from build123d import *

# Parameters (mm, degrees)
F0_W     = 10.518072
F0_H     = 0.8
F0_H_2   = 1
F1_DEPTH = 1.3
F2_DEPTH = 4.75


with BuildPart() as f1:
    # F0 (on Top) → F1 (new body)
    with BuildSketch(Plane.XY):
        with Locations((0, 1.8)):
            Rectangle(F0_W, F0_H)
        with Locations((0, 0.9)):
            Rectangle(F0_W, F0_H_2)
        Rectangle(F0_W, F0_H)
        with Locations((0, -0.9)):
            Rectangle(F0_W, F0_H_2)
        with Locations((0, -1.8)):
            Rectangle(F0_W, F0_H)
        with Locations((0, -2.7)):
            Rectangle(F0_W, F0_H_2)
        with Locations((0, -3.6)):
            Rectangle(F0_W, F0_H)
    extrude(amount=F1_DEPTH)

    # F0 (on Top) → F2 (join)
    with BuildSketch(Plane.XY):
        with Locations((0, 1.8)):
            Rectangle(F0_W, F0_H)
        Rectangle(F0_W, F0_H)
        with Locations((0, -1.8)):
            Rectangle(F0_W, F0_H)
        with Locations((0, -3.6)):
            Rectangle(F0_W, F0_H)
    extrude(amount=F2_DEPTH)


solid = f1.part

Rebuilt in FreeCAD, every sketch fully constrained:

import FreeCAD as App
import Part
import Sketcher
Q = App.Units.Quantity

doc = App.newDocument("Part")
body = doc.addObject("PartDesign::Body", "Body")

# Sketch on XY plane
sketch1 = body.newObject("Sketcher::SketchObject", "Sketch")
sketch1.AttachmentSupport = (doc.getObject("XY_Plane"), [""])
sketch1.MapMode = "FlatFace"
sketch1.addGeometry([
    Part.LineSegment(App.Vector(-5, 2, 0), App.Vector(-5, -4, 0)),
    Part.LineSegment(App.Vector(-5, -4, 0), App.Vector(5, -4, 0)),
    Part.LineSegment(App.Vector(5, -4, 0), App.Vector(5, 2, 0)),
    Part.LineSegment(App.Vector(5, 2, 0), App.Vector(-5, 2, 0)),
], False)
sketch1.addConstraint([
    Sketcher.Constraint("Coincident", 0, 2, 1, 1),
    Sketcher.Constraint("Coincident", 1, 2, 2, 1),
    Sketcher.Constraint("Coincident", 2, 2, 3, 1),
    Sketcher.Constraint("Coincident", 3, 2, 0, 1),
    Sketcher.Constraint("Vertical", 0),
    Sketcher.Constraint("Horizontal", 1),
    Sketcher.Constraint("Vertical", 2),
    Sketcher.Constraint("Horizontal", 3),
    Sketcher.Constraint("DistanceY", 0, 2, 0, 1, Q("6.2 mm")),
    Sketcher.Constraint("DistanceY", 0, 2, -1, 1, Q("4 mm")),
    Sketcher.Constraint("DistanceX", 1, 1, 1, 2, Q("10.518072 mm")),
    Sketcher.Constraint("DistanceX", 0, 2, -1, 1, Q("5.259036 mm")),
])
pad1 = body.newObject("PartDesign::Pad", "Pad")
pad1.Profile = sketch1
pad1.Length = 1.3

# Sketch on XY plane
sketch2 = body.newObject("Sketcher::SketchObject", "Sketch001")
sketch2.AttachmentSupport = (doc.getObject("XY_Plane"), [""])
sketch2.MapMode = "FlatFace"
sketch2.addGeometry([
    Part.LineSegment(App.Vector(-5.3, 2.2, 0), App.Vector(-5.3, 1.4, 0)),  # 0
    Part.LineSegment(App.Vector(-5.3, 1.4, 0), App.Vector(5.3, 1.4, 0)),  # 1
    Part.LineSegment(App.Vector(5.3, 1.4, 0), App.Vector(5.3, 2.2, 0)),  # 2
    Part.LineSegment(App.Vector(5.3, 2.2, 0), App.Vector(-5.3, 2.2, 0)),  # 3
    Part.LineSegment(App.Vector(-5.3, 0.4, 0), App.Vector(-5.3, -0.4, 0)),  # 4
    Part.LineSegment(App.Vector(-5.3, -0.4, 0), App.Vector(5.3, -0.4, 0)),  # 5
    Part.LineSegment(App.Vector(5.3, -0.4, 0), App.Vector(5.3, 0.4, 0)),  # 6
    Part.LineSegment(App.Vector(5.3, 0.4, 0), App.Vector(-5.3, 0.4, 0)),  # 7
    Part.LineSegment(App.Vector(-5.3, -1.4, 0), App.Vector(-5.3, -2.2, 0)),  # 8
    Part.LineSegment(App.Vector(-5.3, -2.2, 0), App.Vector(5.3, -2.2, 0)),  # 9
    Part.LineSegment(App.Vector(5.3, -2.2, 0), App.Vector(5.3, -1.4, 0)),  # 10
    Part.LineSegment(App.Vector(5.3, -1.4, 0), App.Vector(-5.3, -1.4, 0)),  # 11
    Part.LineSegment(App.Vector(-5.3, -3.2, 0), App.Vector(-5.3, -4, 0)),  # 12
    Part.LineSegment(App.Vector(-5.3, -4, 0), App.Vector(5.3, -4, 0)),  # 13
    Part.LineSegment(App.Vector(5.3, -4, 0), App.Vector(5.3, -3.2, 0)),  # 14
    Part.LineSegment(App.Vector(5.3, -3.2, 0), App.Vector(-5.3, -3.2, 0)),  # 15
], False)
sketch2.addConstraint([
    Sketcher.Constraint("Coincident", 0, 2, 1, 1),
    Sketcher.Constraint("Coincident", 1, 2, 2, 1),
    Sketcher.Constraint("Coincident", 2, 2, 3, 1),
    Sketcher.Constraint("Coincident", 3, 2, 0, 1),
    Sketcher.Constraint("Coincident", 4, 2, 5, 1),
    Sketcher.Constraint("Coincident", 5, 2, 6, 1),
    Sketcher.Constraint("Coincident", 6, 2, 7, 1),
    Sketcher.Constraint("Coincident", 7, 2, 4, 1),
    Sketcher.Constraint("Coincident", 8, 2, 9, 1),
    Sketcher.Constraint("Coincident", 9, 2, 10, 1),
    Sketcher.Constraint("Coincident", 10, 2, 11, 1),
    Sketcher.Constraint("Coincident", 11, 2, 8, 1),
    Sketcher.Constraint("Coincident", 12, 2, 13, 1),
    Sketcher.Constraint("Coincident", 13, 2, 14, 1),
    Sketcher.Constraint("Coincident", 14, 2, 15, 1),
    Sketcher.Constraint("Coincident", 15, 2, 12, 1),
    Sketcher.Constraint("Vertical", 0),
    Sketcher.Constraint("Horizontal", 1),
    Sketcher.Constraint("Vertical", 2),
    Sketcher.Constraint("Horizontal", 3),
    Sketcher.Constraint("Vertical", 4),
    Sketcher.Constraint("Horizontal", 5),
    Sketcher.Constraint("Vertical", 6),
    Sketcher.Constraint("Horizontal", 7),
    Sketcher.Constraint("Vertical", 8),
    Sketcher.Constraint("Horizontal", 9),
    Sketcher.Constraint("Vertical", 10),
    Sketcher.Constraint("Horizontal", 11),
    Sketcher.Constraint("Vertical", 12),
    Sketcher.Constraint("Horizontal", 13),
    Sketcher.Constraint("Vertical", 14),
    Sketcher.Constraint("Horizontal", 15),
    Sketcher.Constraint("Symmetric", 4, 2, 6, 2, -1, 1),
    Sketcher.Constraint("Symmetric", 2, 2, 8, 2, -1, 1),
    Sketcher.Constraint("Symmetric", 0, 2, 10, 2, -1, 1),
    Sketcher.Constraint("Vertical", 3, 2, 4, 2),
    Sketcher.Constraint("Vertical", 2, 2, 5, 2),
    Sketcher.Constraint("Vertical", 11, 2, 12, 2),
    Sketcher.Constraint("Vertical", 10, 2, 13, 2),
    Sketcher.Constraint("Equal", 2, 4),
    Sketcher.Constraint("Equal", 10, 12),
    Sketcher.Constraint("DistanceY", 0, 2, 0, 1, Q("0.8 mm")),
    Sketcher.Constraint("DistanceY", 12, 2, -1, 1, Q("4 mm")),
    Sketcher.Constraint("DistanceY", 6, 2, 1, 2, Q("1 mm")),
    Sketcher.Constraint("DistanceX", 1, 1, 1, 2, Q("10.518072 mm")),
])
pad2 = body.newObject("PartDesign::Pad", "Pad001")
pad2.Profile = sketch2
pad2.Length = 4.75

doc.recompute()
